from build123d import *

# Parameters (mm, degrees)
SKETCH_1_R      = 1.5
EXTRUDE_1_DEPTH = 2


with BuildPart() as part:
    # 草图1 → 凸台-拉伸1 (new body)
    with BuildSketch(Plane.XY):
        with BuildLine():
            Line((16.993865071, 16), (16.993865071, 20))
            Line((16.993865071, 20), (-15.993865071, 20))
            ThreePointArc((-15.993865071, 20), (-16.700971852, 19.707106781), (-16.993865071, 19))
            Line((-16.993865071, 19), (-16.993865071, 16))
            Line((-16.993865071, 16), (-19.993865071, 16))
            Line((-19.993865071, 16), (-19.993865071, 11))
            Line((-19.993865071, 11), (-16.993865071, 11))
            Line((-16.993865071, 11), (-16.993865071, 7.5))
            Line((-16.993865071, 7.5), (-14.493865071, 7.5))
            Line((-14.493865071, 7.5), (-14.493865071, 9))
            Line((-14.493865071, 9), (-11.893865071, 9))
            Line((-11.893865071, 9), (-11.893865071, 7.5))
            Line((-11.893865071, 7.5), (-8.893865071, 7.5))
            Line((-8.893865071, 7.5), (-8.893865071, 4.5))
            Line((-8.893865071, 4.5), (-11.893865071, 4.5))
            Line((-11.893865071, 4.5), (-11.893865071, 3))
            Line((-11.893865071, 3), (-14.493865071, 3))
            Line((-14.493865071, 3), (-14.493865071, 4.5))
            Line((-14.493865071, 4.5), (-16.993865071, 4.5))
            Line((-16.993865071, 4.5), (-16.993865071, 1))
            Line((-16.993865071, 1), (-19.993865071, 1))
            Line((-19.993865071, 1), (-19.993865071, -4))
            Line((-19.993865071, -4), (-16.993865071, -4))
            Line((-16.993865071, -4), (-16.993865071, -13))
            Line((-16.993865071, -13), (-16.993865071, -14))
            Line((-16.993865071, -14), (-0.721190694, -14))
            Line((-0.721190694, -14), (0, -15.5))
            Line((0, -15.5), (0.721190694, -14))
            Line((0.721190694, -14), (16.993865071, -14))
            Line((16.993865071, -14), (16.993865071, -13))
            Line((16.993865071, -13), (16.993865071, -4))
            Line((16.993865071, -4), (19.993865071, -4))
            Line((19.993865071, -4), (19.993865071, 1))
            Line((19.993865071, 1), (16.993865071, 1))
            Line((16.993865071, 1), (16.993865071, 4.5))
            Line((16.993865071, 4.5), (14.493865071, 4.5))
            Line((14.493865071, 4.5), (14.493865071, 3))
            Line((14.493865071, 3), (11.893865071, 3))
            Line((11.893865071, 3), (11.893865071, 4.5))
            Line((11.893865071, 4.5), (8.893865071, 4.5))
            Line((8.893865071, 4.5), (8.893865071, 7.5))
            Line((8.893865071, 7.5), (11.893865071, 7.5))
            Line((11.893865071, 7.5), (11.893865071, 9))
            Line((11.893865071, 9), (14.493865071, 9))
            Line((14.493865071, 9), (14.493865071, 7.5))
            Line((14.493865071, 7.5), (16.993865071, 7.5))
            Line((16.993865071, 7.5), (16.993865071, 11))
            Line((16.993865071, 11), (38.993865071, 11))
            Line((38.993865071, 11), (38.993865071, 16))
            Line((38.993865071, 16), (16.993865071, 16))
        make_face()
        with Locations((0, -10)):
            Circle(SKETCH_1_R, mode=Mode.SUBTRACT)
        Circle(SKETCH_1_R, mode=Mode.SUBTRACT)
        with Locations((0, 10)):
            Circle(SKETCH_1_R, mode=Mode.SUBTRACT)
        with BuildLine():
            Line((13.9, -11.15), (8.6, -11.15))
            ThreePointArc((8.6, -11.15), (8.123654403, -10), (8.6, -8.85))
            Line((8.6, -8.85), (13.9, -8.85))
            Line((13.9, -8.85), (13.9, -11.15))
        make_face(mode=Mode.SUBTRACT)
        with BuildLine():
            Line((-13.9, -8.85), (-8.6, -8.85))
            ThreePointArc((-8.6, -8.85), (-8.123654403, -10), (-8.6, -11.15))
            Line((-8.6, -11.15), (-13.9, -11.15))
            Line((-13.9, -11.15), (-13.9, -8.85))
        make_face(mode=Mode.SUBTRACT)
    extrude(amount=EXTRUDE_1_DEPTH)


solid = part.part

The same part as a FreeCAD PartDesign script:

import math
import FreeCAD as App
import Part
import Sketcher
from FreeCAD import Vector

doc = App.newDocument("Part")
params = doc.addObject("Spreadsheet::Sheet", "Params")
for row, (alias, value) in enumerate([
    ("sketch1_diameter", "3 mm"),
    ("sketch1_radius", "1 mm"),
    ("sketch1_width", "3 mm"),
    ("sketch1_width2", "22 mm"),
    ("sketch1_height", "5 mm"),
    ("pad1_length", "2 mm"),
], start=1):
    params.set(f"A{row}", alias)
    params.set(f"B{row}", "=" + value)
    params.setAlias(f"B{row}", alias)

body = doc.addObject("PartDesign::Body", "Body")

# Sketch on XY plane
sketch1 = body.newObject("Sketcher::SketchObject", "Sketch")
sketch1.AttachmentSupport = (doc.getObject("XY_Plane"), [""])
sketch1.MapMode = "FlatFace"
sketch1.addGeometry(Part.LineSegment(Vector(17, 16, 0), Vector(17, 20, 0)), False)
sketch1.addGeometry(Part.LineSegment(Vector(17, 20, 0), Vector(-16, 20, 0)), False)
sketch1.addGeometry(Part.ArcOfCircle(Part.Circle(Vector(-16, 19, 0), Vector(0, 0, 1), 1), math.radians(90), math.radians(180)), False)
sketch1.addGeometry(Part.LineSegment(Vector(-17, 19, 0), Vector(-17, 16, 0)), False)
sketch1.addGeometry(Part.LineSegment(Vector(-17, 16, 0), Vector(-20, 16, 0)), False)
sketch1.addGeometry(Part.LineSegment(Vector(-20, 16, 0), Vector(-20, 11, 0)), False)
sketch1.addGeometry(Part.LineSegment(Vector(-20, 11, 0), Vector(-17, 11, 0)), False)
sketch1.addGeometry(Part.LineSegment(Vector(-17, 11, 0), Vector(-17, 7.5, 0)), False)
sketch1.addGeometry(Part.LineSegment(Vector(-17, 7.5, 0), Vector(-14.5, 7.5, 0)), False)
sketch1.addGeometry(Part.LineSegment(Vector(-14.5, 7.5, 0), Vector(-14.5, 9, 0)), False)
sketch1.addGeometry(Part.LineSegment(Vector(-14.5, 9, 0), Vector(-11.9, 9, 0)), False)
sketch1.addGeometry(Part.LineSegment(Vector(-11.9, 9, 0), Vector(-11.9, 7.5, 0)), False)
sketch1.addGeometry(Part.LineSegment(Vector(-11.9, 7.5, 0), Vector(-8.9, 7.5, 0)), False)
sketch1.addGeometry(Part.LineSegment(Vector(-8.9, 7.5, 0), Vector(-8.9, 4.5, 0)), False)
sketch1.addGeometry(Part.LineSegment(Vector(-8.9, 4.5, 0), Vector(-11.9, 4.5, 0)), False)
sketch1.addGeometry(Part.LineSegment(Vector(-11.9, 4.5, 0), Vector(-11.9, 3, 0)), False)
sketch1.addGeometry(Part.LineSegment(Vector(-11.9, 3, 0), Vector(-14.5, 3, 0)), False)
sketch1.addGeometry(Part.LineSegment(Vector(-14.5, 3, 0), Vector(-14.5, 4.5, 0)), False)
sketch1.addGeometry(Part.LineSegment(Vector(-14.5, 4.5, 0), Vector(-17, 4.5, 0)), False)
sketch1.addGeometry(Part.LineSegment(Vector(-17, 4.5, 0), Vector(-17, 1, 0)), False)
sketch1.addGeometry(Part.LineSegment(Vector(-17, 1, 0), Vector(-20, 1, 0)), False)
sketch1.addGeometry(Part.LineSegment(Vector(-20, 1, 0), Vector(-20, -4, 0)), False)
sketch1.addGeometry(Part.LineSegment(Vector(-20, -4, 0), Vector(-17, -4, 0)), False)
sketch1.addGeometry(Part.LineSegment(Vector(-17, -4, 0), Vector(-17, -14, 0)), False)
sketch1.addGeometry(Part.LineSegment(Vector(-17, -14, 0), Vector(-0.7, -14, 0)), False)
sketch1.addGeometry(Part.LineSegment(Vector(-0.7, -14, 0), Vector(0, -15.5, 0)), False)
sketch1.addGeometry(Part.LineSegment(Vector(0, -15.5, 0), Vector(0.7, -14, 0)), False)
sketch1.addGeometry(Part.LineSegment(Vector(0.7, -14, 0), Vector(17, -14, 0)), False)
sketch1.addGeometry(Part.LineSegment(Vector(17, -14, 0), Vector(17, -4, 0)), False)
sketch1.addGeometry(Part.LineSegment(Vector(17, -4, 0), Vector(20, -4, 0)), False)
sketch1.addGeometry(Part.LineSegment(Vector(20, -4, 0), Vector(20, 1, 0)), False)
sketch1.addGeometry(Part.LineSegment(Vector(20, 1, 0), Vector(17, 1, 0)), False)
sketch1.addGeometry(Part.LineSegment(Vector(17, 1, 0), Vector(17, 4.5, 0)), False)
sketch1.addGeometry(Part.LineSegment(Vector(17, 4.5, 0), Vector(14.5, 4.5, 0)), False)
sketch1.addGeometry(Part.LineSegment(Vector(14.5, 4.5, 0), Vector(14.5, 3, 0)), False)
sketch1.addGeometry(Part.LineSegment(Vector(14.5, 3, 0), Vector(11.9, 3, 0)), False)
sketch1.addGeometry(Part.LineSegment(Vector(11.9, 3, 0), Vector(11.9, 4.5, 0)), False)
sketch1.addGeometry(Part.LineSegment(Vector(11.9, 4.5, 0), Vector(8.9, 4.5, 0)), False)
sketch1.addGeometry(Part.LineSegment(Vector(8.9, 4.5, 0), Vector(8.9, 7.5, 0)), False)
sketch1.addGeometry(Part.LineSegment(Vector(8.9, 7.5, 0), Vector(11.9, 7.5, 0)), False)
sketch1.addGeometry(Part.LineSegment(Vector(11.9, 7.5, 0), Vector(11.9, 9, 0)), False)
sketch1.addGeometry(Part.LineSegment(Vector(11.9, 9, 0), Vector(14.5, 9, 0)), False)
sketch1.addGeometry(Part.LineSegment(Vector(14.5, 9, 0), Vector(14.5, 7.5, 0)), False)
sketch1.addGeometry(Part.LineSegment(Vector(14.5, 7.5, 0), Vector(17, 7.5, 0)), False)
sketch1.addGeometry(Part.LineSegment(Vector(17, 7.5, 0), Vector(17, 11, 0)), False)
sketch1.addGeometry(Part.LineSegment(Vector(17, 11, 0), Vector(39, 11, 0)), False)
sketch1.addGeometry(Part.LineSegment(Vector(39, 11, 0), Vector(39, 16, 0)), False)
sketch1.addGeometry(Part.LineSegment(Vector(39, 16, 0), Vector(17, 16, 0)), False)
sketch1.addGeometry(Part.LineSegment(Vector(-13.9, -11.2, 0), Vector(-13.9, -8.8, 0)), False)
sketch1.addGeometry(Part.LineSegment(Vector(-13.9, -8.8, 0), Vector(-8.6, -8.8, 0)), False)
sketch1.addGeometry(Part.ArcOfCircle(Part.Circle(Vector(-9.7, -10, 0), Vector(0, 0, 1), 1.6), math.radians(-45), math.radians(45)), False)
sketch1.addGeometry(Part.LineSegment(Vector(-8.6, -11.2, 0), Vector(-13.9, -11.2, 0)), False)
sketch1.addGeometry(Part.Circle(Vector(0, -10, 0), Vector(0, 0, 1), 1.5), False)
sketch1.addGeometry(Part.LineSegment(Vector(13.9, -8.8, 0), Vector(13.9, -11.2, 0)), False)
sketch1.addGeometry(Part.LineSegment(Vector(13.9, -11.2, 0), Vector(8.6, -11.2, 0)), False)
sketch1.addGeometry(Part.ArcOfCircle(Part.Circle(Vector(9.7, -10, 0), Vector(0, 0, 1), 1.6), math.radians(135), math.radians(225)), False)
sketch1.addGeometry(Part.LineSegment(Vector(8.6, -8.8, 0), Vector(13.9, -8.8, 0)), False)
sketch1.addGeometry(Part.Circle(Vector(0, 0, 0), Vector(0, 0, 1), 1.5), False)
sketch1.addGeometry(Part.Circle(Vector(0, 10, 0), Vector(0, 0, 1), 1.5), False)
sketch1.addConstraint(Sketcher.Constraint("Coincident", 0, 2, 1, 1))
sketch1.addConstraint(Sketcher.Constraint("Tangent", 1, 2, 2, 1))
sketch1.addConstraint(Sketcher.Constraint("Tangent", 2, 2, 3, 1))
sketch1.addConstraint(Sketcher.Constraint("Coincident", 3, 2, 4, 1))
sketch1.addConstraint(Sketcher.Constraint("Coincident", 4, 2, 5, 1))
sketch1.addConstraint(Sketcher.Constraint("Coincident", 5, 2, 6, 1))
sketch1.addConstraint(Sketcher.Constraint("Coincident", 6, 2, 7, 1))
sketch1.addConstraint(Sketcher.Constraint("Coincident", 7, 2, 8, 1))
sketch1.addConstraint(Sketcher.Constraint("Coincident", 8, 2, 9, 1))
sketch1.addConstraint(Sketcher.Constraint("Coincident", 9, 2, 10, 1))
sketch1.addConstraint(Sketcher.Constraint("Coincident", 10, 2, 11, 1))
sketch1.addConstraint(Sketcher.Constraint("Coincident", 11, 2, 12, 1))
sketch1.addConstraint(Sketcher.Constraint("Coincident", 12, 2, 13, 1))
sketch1.addConstraint(Sketcher.Constraint("Coincident", 13, 2, 14, 1))
sketch1.addConstraint(Sketcher.Constraint("Coincident", 14, 2, 15, 1))
sketch1.addConstraint(Sketcher.Constraint("Coincident", 15, 2, 16, 1))
sketch1.addConstraint(Sketcher.Constraint("Coincident", 16, 2, 17, 1))
sketch1.addConstraint(Sketcher.Constraint("Coincident", 17, 2, 18, 1))
sketch1.addConstraint(Sketcher.Constraint("Coincident", 18, 2, 19, 1))
sketch1.addConstraint(Sketcher.Constraint("Coincident", 19, 2, 20, 1))
sketch1.addConstraint(Sketcher.Constraint("Coincident", 20, 2, 21, 1))
sketch1.addConstraint(Sketcher.Constraint("Coincident", 21, 2, 22, 1))
sketch1.addConstraint(Sketcher.Constraint("Coincident", 22, 2, 23, 1))
sketch1.addConstraint(Sketcher.Constraint("Coincident", 23, 2, 24, 1))
sketch1.addConstraint(Sketcher.Constraint("Coincident", 24, 2, 25, 1))
sketch1.addConstraint(Sketcher.Constraint("Coincident", 25, 2, 26, 1))
sketch1.addConstraint(Sketcher.Constraint("Coincident", 26, 2, 27, 1))
sketch1.addConstraint(Sketcher.Constraint("Coincident", 27, 2, 28, 1))
sketch1.addConstraint(Sketcher.Constraint("Coincident", 28, 2, 29, 1))
sketch1.addConstraint(Sketcher.Constraint("Coincident", 29, 2, 30, 1))
sketch1.addConstraint(Sketcher.Constraint("Coincident", 30, 2, 31, 1))
sketch1.addConstraint(Sketcher.Constraint("Coincident", 31, 2, 32, 1))
sketch1.addConstraint(Sketcher.Constraint("Coincident", 32, 2, 33, 1))
sketch1.addConstraint(Sketcher.Constraint("Coincident", 33, 2, 34, 1))
sketch1.addConstraint(Sketcher.Constraint("Coincident", 34, 2, 35, 1))
sketch1.addConstraint(Sketcher.Constraint("Coincident", 35, 2, 36, 1))
sketch1.addConstraint(Sketcher.Constraint("Coincident", 36, 2, 37, 1))
sketch1.addConstraint(Sketcher.Constraint("Coincident", 37, 2, 38, 1))
sketch1.addConstraint(Sketcher.Constraint("Coincident", 38, 2, 39, 1))
sketch1.addConstraint(Sketcher.Constraint("Coincident", 39, 2, 40, 1))
sketch1.addConstraint(Sketcher.Constraint("Coincident", 40, 2, 41, 1))
sketch1.addConstraint(Sketcher.Constraint("Coincident", 41, 2, 42, 1))
sketch1.addConstraint(Sketcher.Constraint("Coincident", 42, 2, 43, 1))
sketch1.addConstraint(Sketcher.Constraint("Coincident", 43, 2, 44, 1))
sketch1.addConstraint(Sketcher.Constraint("Coincident", 44, 2, 45, 1))
sketch1.addConstraint(Sketcher.Constraint("Coincident", 45, 2, 46, 1))
sketch1.addConstraint(Sketcher.Constraint("Coincident", 46, 2, 47, 1))
sketch1.addConstraint(Sketcher.Constraint("Coincident", 47, 2, 0, 1))
sketch1.addConstraint(Sketcher.Constraint("Coincident", 48, 2, 49, 1))
sketch1.addConstraint(Sketcher.Constraint("Coincident", 49, 2, 50, 2))
sketch1.addConstraint(Sketcher.Constraint("Coincident", 50, 1, 51, 1))
sketch1.addConstraint(Sketcher.Constraint("Coincident", 51, 2, 48, 1))
sketch1.addConstraint(Sketcher.Constraint("Coincident", 53, 2, 54, 1))
sketch1.addConstraint(Sketcher.Constraint("Coincident", 54, 2, 55, 2))
sketch1.addConstraint(Sketcher.Constraint("Coincident", 55, 1, 56, 1))
sketch1.addConstraint(Sketcher.Constraint("Coincident", 56, 2, 53, 1))
sketch1.addConstraint(Sketcher.Constraint("Vertical", 0))
sketch1.addConstraint(Sketcher.Constraint("Horizontal", 1))
sketch1.addConstraint(Sketcher.Constraint("Vertical", 3))
sketch1.addConstraint(Sketcher.Constraint("Horizontal", 4))
sketch1.addConstraint(Sketcher.Constraint("Vertical", 5))
sketch1.addConstraint(Sketcher.Constraint("Horizontal", 6))
sketch1.addConstraint(Sketcher.Constraint("Vertical", 7))
sketch1.addConstraint(Sketcher.Constraint("Horizontal", 8))
sketch1.addConstraint(Sketcher.Constraint("Vertical", 9))
sketch1.addConstraint(Sketcher.Constraint("Horizontal", 10))
sketch1.addConstraint(Sketcher.Constraint("Vertical", 11))
sketch1.addConstraint(Sketcher.Constraint("Horizontal", 12))
sketch1.addConstraint(Sketcher.Constraint("Vertical", 13))
sketch1.addConstraint(Sketcher.Constraint("Horizontal", 14))
sketch1.addConstraint(Sketcher.Constraint("Vertical", 15))
sketch1.addConstraint(Sketcher.Constraint("Horizontal", 16))
sketch1.addConstraint(Sketcher.Constraint("Vertical", 17))
sketch1.addConstraint(Sketcher.Constraint("Horizontal", 18))
sketch1.addConstraint(Sketcher.Constraint("Vertical", 19))
sketch1.addConstraint(Sketcher.Constraint("Horizontal", 20))
sketch1.addConstraint(Sketcher.Constraint("Vertical", 21))
sketch1.addConstraint(Sketcher.Constraint("Horizontal", 22))
sketch1.addConstraint(Sketcher.Constraint("Vertical", 23))
sketch1.addConstraint(Sketcher.Constraint("Horizontal", 24))
sketch1.addConstraint(Sketcher.Constraint("Horizontal", 27))
sketch1.addConstraint(Sketcher.Constraint("Vertical", 28))
sketch1.addConstraint(Sketcher.Constraint("Horizontal", 29))
sketch1.addConstraint(Sketcher.Constraint("Vertical", 30))
sketch1.addConstraint(Sketcher.Constraint("Horizontal", 31))
sketch1.addConstraint(Sketcher.Constraint("Vertical", 32))
sketch1.addConstraint(Sketcher.Constraint("Horizontal", 33))
sketch1.addConstraint(Sketcher.Constraint("Vertical", 34))
sketch1.addConstraint(Sketcher.Constraint("Horizontal", 35))
sketch1.addConstraint(Sketcher.Constraint("Vertical", 36))
sketch1.addConstraint(Sketcher.Constraint("Horizontal", 37))
sketch1.addConstraint(Sketcher.Constraint("Vertical", 38))
sketch1.addConstraint(Sketcher.Constraint("Horizontal", 39))
sketch1.addConstraint(Sketcher.Constraint("Vertical", 40))
sketch1.addConstraint(Sketcher.Constraint("Horizontal", 41))
sketch1.addConstraint(Sketcher.Constraint("Vertical", 42))
sketch1.addConstraint(Sketcher.Constraint("Horizontal", 43))
sketch1.addConstraint(Sketcher.Constraint("Vertical", 44))
sketch1.addConstraint(Sketcher.Constraint("Horizontal", 45))
sketch1.addConstraint(Sketcher.Constraint("Vertical", 46))
sketch1.addConstraint(Sketcher.Constraint("Horizontal", 47))
sketch1.addConstraint(Sketcher.Constraint("Vertical", 48))
sketch1.addConstraint(Sketcher.Constraint("Horizontal", 49))
sketch1.addConstraint(Sketcher.Constraint("Horizontal", 51))
sketch1.addConstraint(Sketcher.Constraint("Vertical", 53))
sketch1.addConstraint(Sketcher.Constraint("Horizontal", 54))
sketch1.addConstraint(Sketcher.Constraint("Horizontal", 56))
sketch1.addConstraint(Sketcher.Constraint("Coincident", 57, 3, -1, 1))
sketch1.addConstraint(Sketcher.Constraint("Equal", 50, 55))
sketch1.addConstraint(Sketcher.Constraint("Equal", 52, 57))
sketch1.addConstraint(Sketcher.Constraint("Equal", 57, 58))
sketch1.addConstraint(Sketcher.Constraint("Symmetric", 52, 3, 58, 3, -1, 1))
sketch1.addConstraint(Sketcher.Constraint("Symmetric", 50, 3, 55, 3, -2))
sketch1.addConstraint(Sketcher.Constraint("Symmetric", 24, 2, 26, 2, -2))
sketch1.addConstraint(Sketcher.Constraint("Symmetric", 22, 2, 28, 2, -2))
sketch1.addConstraint(Sketcher.Constraint("Symmetric", 20, 2, 30, 2, -2))
sketch1.addConstraint(Sketcher.Constraint("Symmetric", 18, 2, 32, 2, -2))
sketch1.addConstraint(Sketcher.Constraint("Symmetric", 16, 2, 34, 2, -2))
sketch1.addConstraint(Sketcher.Constraint("Symmetric", 14, 2, 36, 2, -2))
sketch1.addConstraint(Sketcher.Constraint("Symmetric", 12, 2, 38, 2, -2))
sketch1.addConstraint(Sketcher.Constraint("Symmetric", 10, 2, 40, 2, -2))
sketch1.addConstraint(Sketcher.Constraint("Symmetric", 8, 2, 42, 2, -2))
sketch1.addConstraint(Sketcher.Constraint("Symmetric", 6, 2, 44, 2, -2))
sketch1.addConstraint(Sketcher.Constraint("Symmetric", 3, 2, 47, 2, -2))
sketch1.addConstraint(Sketcher.Constraint("Symmetric", 51, 2, 53, 2, -2))
sketch1.addConstraint(Sketcher.Constraint("PointOnObject", 52, 3, -2))
sketch1.addConstraint(Sketcher.Constraint("PointOnObject", 25, 2, -2))
sketch1.addConstraint(Sketcher.Constraint("Horizontal", 50, 3, 52, 3))
sketch1.addConstraint(Sketcher.Constraint("Horizontal", 8, 2, 11, 2))
sketch1.addConstraint(Sketcher.Constraint("Horizontal", 14, 2, 17, 2))
sketch1.addConstraint(Sketcher.Constraint("Horizontal", 49, 2, 55, 1))
sketch1.addConstraint(Sketcher.Constraint("Vertical", 3, 2, 6, 2))
sketch1.addConstraint(Sketcher.Constraint("Vertical", 11, 2, 14, 2))
sketch1.addConstraint(Sketcher.Constraint("Vertical", 9, 2, 16, 2))
sketch1.addConstraint(Sketcher.Constraint("Vertical", 7, 2, 18, 2))
sketch1.addConstraint(Sketcher.Constraint("Vertical", 5, 2, 20, 2))
sketch1.addConstraint(Sketcher.Constraint("Vertical", 19, 2, 22, 2))
sketch1.addConstraint(Sketcher.Constraint("Vertical", 49, 2, 50, 1))
sketch1.addConstraint(Sketcher.Constraint("Equal", 6, 12))
sketch1.addConstraint(Sketcher.Constraint("Equal", 39, 3))
sketch1.addConstraint(Sketcher.Constraint("Equal", 3, 13))
sketch1.addConstraint(Sketcher.Constraint("Equal", 11, 15))
sketch1.addConstraint(Sketcher.Constraint("Equal", 7, 19))
sketch1.addConstraint(Sketcher.Constraint("Equal", 5, 21))
sketch1.addConstraint(Sketcher.Constraint("Diameter", 52, 3.0))
sketch1.addConstraint(Sketcher.Constraint("Radius", 2, 1.0))
sketch1.addConstraint(Sketcher.Constraint("DistanceX", 4, 2, 4, 1, 3.0))
sketch1.addConstraint(Sketcher.Constraint("DistanceX", 45, 1, 45, 2, 22.0))
sketch1.addConstraint(Sketcher.Constraint("DistanceY", 5, 2, 5, 1, 5.0))
sketch1.addConstraint(Sketcher.Constraint("DistanceY", 23, 2, 23, 1, 10.0))
sketch1.addConstraint(Sketcher.Constraint("DistanceX", 8, 1, 8, 2, 2.5))
sketch1.addConstraint(Sketcher.Constraint("DistanceX", 10, 1, 10, 2, 2.6))
sketch1.addConstraint(Sketcher.Constraint("DistanceX", 49, 1, 49, 2, 5.3))
sketch1.addConstraint(Sketcher.Constraint("DistanceY", 7, 2, 7, 1, 3.5))
sketch1.addConstraint(Sketcher.Constraint("DistanceY", 9, 1, 9, 2, 1.5))
sketch1.addConstraint(Sketcher.Constraint("DistanceY", 48, 1, 48, 2, 2.3))
sketch1.addConstraint(Sketcher.Constraint("DistanceY", -1, 1, 2, 3, 19.0))
sketch1.addConstraint(Sketcher.Constraint("DistanceY", 50, 3, -1, 1, 10.0))
sketch1.addConstraint(Sketcher.Constraint("DistanceY", 25, 2, -1, 1, 15.5))
sketch1.addConstraint(Sketcher.Constraint("DistanceX", 48, 2, -1, 1, 13.9))
sketch1.addConstraint(Sketcher.Constraint("DistanceX", 50, 3, -1, 1, 9.75))
sketch1.addConstraint(Sketcher.Constraint("DistanceX", 1, 2, 1, 1, 32.98773))
sketch1.addConstraint(Sketcher.Constraint("DistanceX", 24, 1, 24, 2, 16.272674))
sketch1.setExpression("Constraints[144]", "Params.sketch1_diameter")
sketch1.setExpression("Constraints[145]", "Params.sketch1_radius")
sketch1.setExpression("Constraints[146]", "Params.sketch1_width")
sketch1.setExpression("Constraints[147]", "Params.sketch1_width2")
sketch1.setExpression("Constraints[148]", "Params.sketch1_height")
pad1 = body.newObject("PartDesign::Pad", "Pad")
pad1.Profile = sketch1
pad1.setExpression("Length", "Params.pad1_length")

doc.recompute()
